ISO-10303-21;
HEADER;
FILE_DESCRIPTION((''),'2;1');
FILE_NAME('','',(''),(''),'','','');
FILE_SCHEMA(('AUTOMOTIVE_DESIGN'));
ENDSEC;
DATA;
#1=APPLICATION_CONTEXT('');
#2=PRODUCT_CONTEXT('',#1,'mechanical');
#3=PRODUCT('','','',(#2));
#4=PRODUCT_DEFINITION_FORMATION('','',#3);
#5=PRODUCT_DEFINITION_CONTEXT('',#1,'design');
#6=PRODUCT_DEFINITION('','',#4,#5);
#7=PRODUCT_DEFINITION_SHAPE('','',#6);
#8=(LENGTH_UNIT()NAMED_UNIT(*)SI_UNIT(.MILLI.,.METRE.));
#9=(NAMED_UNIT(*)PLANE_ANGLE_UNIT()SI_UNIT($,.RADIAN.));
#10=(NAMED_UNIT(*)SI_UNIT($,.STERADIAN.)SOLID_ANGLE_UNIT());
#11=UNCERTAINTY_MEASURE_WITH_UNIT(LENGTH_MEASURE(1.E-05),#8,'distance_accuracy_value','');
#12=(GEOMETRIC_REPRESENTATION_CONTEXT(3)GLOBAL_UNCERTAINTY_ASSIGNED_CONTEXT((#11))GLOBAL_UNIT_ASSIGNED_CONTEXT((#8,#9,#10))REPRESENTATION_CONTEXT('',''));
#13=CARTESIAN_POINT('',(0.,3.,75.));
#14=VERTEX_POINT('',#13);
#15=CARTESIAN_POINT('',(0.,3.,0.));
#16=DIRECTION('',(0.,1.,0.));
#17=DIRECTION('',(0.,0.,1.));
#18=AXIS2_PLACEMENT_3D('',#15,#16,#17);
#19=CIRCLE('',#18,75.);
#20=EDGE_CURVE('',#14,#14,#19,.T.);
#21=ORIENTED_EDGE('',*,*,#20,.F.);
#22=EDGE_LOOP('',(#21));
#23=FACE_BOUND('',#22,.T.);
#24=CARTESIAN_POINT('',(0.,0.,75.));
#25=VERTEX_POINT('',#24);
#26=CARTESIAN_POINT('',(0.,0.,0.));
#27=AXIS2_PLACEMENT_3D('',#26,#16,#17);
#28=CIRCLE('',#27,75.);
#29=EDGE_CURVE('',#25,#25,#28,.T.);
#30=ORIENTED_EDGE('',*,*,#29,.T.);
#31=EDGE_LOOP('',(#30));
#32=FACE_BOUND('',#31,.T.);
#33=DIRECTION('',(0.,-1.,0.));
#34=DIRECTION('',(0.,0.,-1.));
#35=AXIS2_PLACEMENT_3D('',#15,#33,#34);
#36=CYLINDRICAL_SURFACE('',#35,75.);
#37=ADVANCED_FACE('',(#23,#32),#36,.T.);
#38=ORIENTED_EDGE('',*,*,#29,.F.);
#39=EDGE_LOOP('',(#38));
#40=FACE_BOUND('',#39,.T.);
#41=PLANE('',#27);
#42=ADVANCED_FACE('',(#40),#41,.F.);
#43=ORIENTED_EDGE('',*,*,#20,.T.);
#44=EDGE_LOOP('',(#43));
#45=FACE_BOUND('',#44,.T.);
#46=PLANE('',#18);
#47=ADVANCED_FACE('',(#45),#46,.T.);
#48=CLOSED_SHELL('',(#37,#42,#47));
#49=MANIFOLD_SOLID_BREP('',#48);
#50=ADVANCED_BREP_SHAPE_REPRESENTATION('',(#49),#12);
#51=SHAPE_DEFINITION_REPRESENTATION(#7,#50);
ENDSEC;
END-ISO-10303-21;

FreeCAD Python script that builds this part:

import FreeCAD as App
import Part
import Sketcher

doc = App.newDocument("Part")
body = doc.addObject("PartDesign::Body", "Body")

# Sketch on XZ plane
sketch1 = body.newObject("Sketcher::SketchObject", "Sketch")
sketch1.AttachmentSupport = (doc.getObject("XZ_Plane"), [""])
sketch1.MapMode = "FlatFace"
sketch1.addGeometry(Part.Circle(App.Vector(0, 0, 0), App.Vector(0, 0, 1), 75), False)
sketch1.addConstraint([
    Sketcher.Constraint("Coincident", 0, 3, -1, 1),
    Sketcher.Constraint("Diameter", 0, 150.0),
])
pad1 = body.newObject("PartDesign::Pad", "Pad")
pad1.Profile = sketch1
pad1.Length = 3
pad1.Reversed = True

doc.recompute()
